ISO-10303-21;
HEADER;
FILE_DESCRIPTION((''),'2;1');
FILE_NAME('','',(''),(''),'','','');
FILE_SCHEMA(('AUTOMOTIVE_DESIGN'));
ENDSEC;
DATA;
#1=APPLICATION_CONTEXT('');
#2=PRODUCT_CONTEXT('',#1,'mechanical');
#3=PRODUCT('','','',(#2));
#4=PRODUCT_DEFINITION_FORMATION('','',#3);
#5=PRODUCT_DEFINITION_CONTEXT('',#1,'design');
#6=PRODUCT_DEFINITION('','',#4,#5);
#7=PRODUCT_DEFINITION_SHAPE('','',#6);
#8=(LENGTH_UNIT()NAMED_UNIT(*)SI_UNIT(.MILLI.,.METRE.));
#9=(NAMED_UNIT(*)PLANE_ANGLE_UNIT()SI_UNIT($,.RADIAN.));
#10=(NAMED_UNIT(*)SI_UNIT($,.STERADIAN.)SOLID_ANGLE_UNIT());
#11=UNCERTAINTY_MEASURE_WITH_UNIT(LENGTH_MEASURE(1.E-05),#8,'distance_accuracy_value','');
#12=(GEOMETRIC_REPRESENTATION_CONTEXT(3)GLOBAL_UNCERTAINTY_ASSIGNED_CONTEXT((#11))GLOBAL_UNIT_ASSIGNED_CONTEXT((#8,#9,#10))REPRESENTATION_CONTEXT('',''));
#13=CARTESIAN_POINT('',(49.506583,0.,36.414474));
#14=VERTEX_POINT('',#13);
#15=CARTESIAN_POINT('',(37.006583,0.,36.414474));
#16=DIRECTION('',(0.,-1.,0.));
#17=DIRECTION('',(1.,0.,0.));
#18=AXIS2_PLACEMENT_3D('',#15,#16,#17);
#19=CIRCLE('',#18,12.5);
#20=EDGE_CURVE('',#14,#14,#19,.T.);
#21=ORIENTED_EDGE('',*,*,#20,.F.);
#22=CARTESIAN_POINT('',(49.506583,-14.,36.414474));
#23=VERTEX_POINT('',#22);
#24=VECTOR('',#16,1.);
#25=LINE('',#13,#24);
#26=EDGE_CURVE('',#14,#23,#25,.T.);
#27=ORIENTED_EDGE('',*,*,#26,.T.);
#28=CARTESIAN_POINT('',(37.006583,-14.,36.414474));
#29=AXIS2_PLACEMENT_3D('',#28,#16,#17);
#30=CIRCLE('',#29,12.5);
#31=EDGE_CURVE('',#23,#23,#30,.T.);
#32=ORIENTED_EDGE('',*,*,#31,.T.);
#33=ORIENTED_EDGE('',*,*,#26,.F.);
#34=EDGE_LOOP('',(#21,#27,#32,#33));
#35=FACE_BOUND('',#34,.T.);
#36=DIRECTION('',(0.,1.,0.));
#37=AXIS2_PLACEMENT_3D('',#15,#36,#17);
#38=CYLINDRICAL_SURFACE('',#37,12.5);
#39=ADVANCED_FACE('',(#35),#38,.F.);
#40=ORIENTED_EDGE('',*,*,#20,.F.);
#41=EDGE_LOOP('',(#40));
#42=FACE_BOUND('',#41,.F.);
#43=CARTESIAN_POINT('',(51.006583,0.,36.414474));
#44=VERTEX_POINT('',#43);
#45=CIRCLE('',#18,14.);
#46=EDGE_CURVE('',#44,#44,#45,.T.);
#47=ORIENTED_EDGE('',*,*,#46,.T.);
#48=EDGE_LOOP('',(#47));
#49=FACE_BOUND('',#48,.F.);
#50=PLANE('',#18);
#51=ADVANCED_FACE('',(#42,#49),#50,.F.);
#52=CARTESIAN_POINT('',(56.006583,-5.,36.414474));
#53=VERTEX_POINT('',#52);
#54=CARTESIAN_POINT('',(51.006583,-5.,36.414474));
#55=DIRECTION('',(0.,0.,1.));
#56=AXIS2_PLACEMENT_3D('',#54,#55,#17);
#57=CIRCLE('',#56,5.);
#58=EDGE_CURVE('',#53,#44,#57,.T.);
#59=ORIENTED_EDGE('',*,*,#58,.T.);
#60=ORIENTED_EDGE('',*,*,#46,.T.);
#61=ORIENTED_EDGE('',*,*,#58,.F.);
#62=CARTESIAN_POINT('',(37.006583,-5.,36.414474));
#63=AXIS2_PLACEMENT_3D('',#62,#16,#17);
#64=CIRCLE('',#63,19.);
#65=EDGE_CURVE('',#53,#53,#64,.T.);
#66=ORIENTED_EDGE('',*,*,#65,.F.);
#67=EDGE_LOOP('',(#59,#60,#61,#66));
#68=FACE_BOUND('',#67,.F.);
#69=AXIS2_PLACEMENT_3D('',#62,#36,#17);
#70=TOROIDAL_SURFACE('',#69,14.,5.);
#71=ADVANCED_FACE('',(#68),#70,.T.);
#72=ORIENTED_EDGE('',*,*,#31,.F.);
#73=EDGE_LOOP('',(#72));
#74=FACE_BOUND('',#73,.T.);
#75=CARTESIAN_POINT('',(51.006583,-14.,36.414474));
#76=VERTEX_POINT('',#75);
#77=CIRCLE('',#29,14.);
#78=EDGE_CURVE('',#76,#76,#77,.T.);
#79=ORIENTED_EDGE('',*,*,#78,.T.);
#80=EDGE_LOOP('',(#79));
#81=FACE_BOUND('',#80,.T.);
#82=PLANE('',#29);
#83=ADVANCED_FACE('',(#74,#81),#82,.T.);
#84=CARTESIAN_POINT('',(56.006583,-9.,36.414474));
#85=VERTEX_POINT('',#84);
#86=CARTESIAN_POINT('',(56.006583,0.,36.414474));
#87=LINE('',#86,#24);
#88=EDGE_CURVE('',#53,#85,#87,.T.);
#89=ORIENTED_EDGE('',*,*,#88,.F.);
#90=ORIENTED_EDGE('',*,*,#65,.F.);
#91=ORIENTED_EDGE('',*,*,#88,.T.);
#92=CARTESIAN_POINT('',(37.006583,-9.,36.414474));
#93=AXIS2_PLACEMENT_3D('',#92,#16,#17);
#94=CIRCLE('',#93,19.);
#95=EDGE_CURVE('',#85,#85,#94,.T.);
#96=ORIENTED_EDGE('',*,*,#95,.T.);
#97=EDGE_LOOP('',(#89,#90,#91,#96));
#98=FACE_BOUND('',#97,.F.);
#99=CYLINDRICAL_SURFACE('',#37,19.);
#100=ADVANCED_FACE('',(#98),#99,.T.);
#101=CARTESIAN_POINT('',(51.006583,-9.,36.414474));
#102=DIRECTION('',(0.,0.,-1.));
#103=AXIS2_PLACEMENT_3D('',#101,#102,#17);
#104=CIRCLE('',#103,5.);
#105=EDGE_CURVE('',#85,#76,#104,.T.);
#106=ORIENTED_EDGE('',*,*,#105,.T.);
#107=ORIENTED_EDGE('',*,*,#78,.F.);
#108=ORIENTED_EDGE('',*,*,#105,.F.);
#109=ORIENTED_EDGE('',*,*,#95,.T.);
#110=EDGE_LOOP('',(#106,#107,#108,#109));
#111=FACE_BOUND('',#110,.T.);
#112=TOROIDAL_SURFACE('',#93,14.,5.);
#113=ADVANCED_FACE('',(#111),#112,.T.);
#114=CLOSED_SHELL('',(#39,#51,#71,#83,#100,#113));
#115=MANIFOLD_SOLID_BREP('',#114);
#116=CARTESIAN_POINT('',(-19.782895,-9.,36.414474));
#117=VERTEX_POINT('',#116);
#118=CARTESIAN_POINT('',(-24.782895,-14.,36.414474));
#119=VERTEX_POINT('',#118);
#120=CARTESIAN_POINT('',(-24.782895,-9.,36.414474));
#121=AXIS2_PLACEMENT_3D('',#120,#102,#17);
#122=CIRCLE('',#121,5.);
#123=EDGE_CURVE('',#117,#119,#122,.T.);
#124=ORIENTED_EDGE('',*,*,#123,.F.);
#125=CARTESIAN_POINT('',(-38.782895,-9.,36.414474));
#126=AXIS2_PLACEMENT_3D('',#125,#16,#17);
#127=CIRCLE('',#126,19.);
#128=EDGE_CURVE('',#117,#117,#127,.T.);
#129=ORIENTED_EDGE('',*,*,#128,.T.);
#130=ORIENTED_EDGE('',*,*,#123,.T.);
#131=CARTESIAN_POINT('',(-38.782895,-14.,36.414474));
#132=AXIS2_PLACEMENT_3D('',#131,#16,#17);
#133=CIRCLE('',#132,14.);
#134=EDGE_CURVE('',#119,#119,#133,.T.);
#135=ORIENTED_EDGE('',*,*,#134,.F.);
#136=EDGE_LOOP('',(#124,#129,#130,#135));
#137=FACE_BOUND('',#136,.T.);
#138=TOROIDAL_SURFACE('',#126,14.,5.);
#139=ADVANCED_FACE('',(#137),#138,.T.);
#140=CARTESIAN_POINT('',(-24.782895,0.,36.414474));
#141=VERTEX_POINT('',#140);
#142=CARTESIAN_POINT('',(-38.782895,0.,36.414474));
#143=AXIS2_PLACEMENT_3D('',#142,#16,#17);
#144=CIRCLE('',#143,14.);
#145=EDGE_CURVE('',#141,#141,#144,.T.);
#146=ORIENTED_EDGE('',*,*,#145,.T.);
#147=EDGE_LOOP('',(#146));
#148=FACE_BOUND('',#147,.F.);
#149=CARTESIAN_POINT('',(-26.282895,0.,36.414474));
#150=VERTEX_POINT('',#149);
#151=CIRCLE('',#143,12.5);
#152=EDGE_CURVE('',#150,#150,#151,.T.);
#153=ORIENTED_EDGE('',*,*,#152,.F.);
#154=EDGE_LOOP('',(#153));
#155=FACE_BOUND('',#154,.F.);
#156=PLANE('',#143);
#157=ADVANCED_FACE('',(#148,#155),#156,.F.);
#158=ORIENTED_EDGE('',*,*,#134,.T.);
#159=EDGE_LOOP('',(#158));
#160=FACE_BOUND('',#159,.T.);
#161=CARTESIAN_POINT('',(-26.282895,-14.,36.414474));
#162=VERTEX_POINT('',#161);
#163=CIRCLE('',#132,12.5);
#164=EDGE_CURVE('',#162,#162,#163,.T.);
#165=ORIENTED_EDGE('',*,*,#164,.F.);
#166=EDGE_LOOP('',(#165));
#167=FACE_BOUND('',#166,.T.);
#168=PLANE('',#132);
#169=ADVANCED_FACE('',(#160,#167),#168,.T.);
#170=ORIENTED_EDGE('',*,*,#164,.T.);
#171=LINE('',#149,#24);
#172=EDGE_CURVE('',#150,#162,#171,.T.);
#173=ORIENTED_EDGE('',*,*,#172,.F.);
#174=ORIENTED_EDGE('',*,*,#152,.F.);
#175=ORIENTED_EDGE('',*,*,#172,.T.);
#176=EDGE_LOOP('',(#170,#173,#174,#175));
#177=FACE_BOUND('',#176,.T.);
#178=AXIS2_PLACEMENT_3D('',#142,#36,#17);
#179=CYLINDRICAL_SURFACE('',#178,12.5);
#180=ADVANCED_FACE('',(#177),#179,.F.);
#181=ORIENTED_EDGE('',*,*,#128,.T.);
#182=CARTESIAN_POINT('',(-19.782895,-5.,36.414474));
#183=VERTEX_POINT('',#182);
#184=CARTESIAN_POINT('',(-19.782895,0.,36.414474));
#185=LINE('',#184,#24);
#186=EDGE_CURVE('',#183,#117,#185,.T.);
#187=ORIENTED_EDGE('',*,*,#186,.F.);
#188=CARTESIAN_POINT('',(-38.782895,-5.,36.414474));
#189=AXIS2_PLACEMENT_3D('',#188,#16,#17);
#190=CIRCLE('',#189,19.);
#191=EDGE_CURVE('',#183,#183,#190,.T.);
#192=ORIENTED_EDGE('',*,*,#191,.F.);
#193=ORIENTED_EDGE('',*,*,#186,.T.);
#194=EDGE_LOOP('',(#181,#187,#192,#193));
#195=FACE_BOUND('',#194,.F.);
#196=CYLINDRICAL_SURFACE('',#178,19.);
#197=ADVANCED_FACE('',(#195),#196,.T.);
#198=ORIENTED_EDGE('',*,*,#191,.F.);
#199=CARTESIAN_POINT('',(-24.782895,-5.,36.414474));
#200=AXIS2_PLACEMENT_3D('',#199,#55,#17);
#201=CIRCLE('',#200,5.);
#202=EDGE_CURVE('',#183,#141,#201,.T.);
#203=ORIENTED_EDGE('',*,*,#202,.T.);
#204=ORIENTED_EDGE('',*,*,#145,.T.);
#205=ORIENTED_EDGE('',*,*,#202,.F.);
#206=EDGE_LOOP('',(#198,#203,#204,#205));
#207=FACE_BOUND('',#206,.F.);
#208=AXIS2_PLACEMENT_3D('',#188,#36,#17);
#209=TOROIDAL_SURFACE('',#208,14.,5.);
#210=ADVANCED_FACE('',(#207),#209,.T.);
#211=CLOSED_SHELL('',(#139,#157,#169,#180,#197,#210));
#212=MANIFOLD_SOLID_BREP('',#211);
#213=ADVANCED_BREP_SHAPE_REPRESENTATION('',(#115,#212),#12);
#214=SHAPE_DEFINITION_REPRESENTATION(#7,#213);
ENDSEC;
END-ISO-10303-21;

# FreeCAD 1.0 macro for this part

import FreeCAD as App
import Part
import Sketcher
Q = App.Units.Quantity


def edges_at(feature, points):
    """Names of the edges that pass closest to the given points."""
    edges = feature.Shape.Edges
    near = lambda p: min(range(len(edges)), key=lambda i: edges[i].distToShape(Part.Vertex(*p))[0])
    return sorted({f"Edge{near(p) + 1}" for p in points})

doc = App.newDocument("Part")
body = doc.addObject("PartDesign::Body", "Body")
body.AllowCompound = True

# Sketch on XZ plane
sketch1 = body.newObject("Sketcher::SketchObject", "Sketch")
sketch1.AttachmentSupport = (doc.getObject("XZ_Plane"), [""])
sketch1.MapMode = "FlatFace"
sketch1.addGeometry([
    Part.Circle(App.Vector(-38.782895, 36.414474, 0), App.Vector(0, 0, 1), 19),
    Part.Circle(App.Vector(-38.782895, 36.414474, 0), App.Vector(0, 0, 1), 12.5),
    Part.Circle(App.Vector(37.006583, 36.414474, 0), App.Vector(0, 0, 1), 19),
    Part.Circle(App.Vector(37.006583, 36.414474, 0), App.Vector(0, 0, 1), 12.5),
], False)
sketch1.addConstraint([
    Sketcher.Constraint("Coincident", 1, 3, 0, 3),
    Sketcher.Constraint("Coincident", 3, 3, 2, 3),
    Sketcher.Constraint("Equal", 0, 2),
    Sketcher.Constraint("Equal", 1, 3),
    Sketcher.Constraint("Horizontal", 1, 3, 2, 3),
    Sketcher.Constraint("Diameter", 0, Q("38 mm")),
    Sketcher.Constraint("Diameter", 1, Q("25 mm")),
    Sketcher.Constraint("DistanceX", 0, 3, 2, 3, Q("75.789478 mm")),
    Sketcher.Constraint("DistanceX", 0, 3, -1, 1, Q("38.782895 mm")),
    Sketcher.Constraint("DistanceY", -1, 1, 0, 3, Q("36.414474 mm")),
])
pad1 = body.newObject("PartDesign::Pad", "Pad")
pad1.Profile = sketch1
pad1.Length = 14
doc.recompute()

fillet = body.newObject("PartDesign::Fillet", "Fillet")
fillet.Base = (pad1, edges_at(pad1, [
    (-19.783, -7, 36.414),
    (-57.783, 0, 36.414),
    (-57.783, -14, 36.414),
    (56.007, -7, 36.414),
    (18.007, 0, 36.414),
    (18.007, -14, 36.414),
]))
fillet.Radius = 5

doc.recompute()
